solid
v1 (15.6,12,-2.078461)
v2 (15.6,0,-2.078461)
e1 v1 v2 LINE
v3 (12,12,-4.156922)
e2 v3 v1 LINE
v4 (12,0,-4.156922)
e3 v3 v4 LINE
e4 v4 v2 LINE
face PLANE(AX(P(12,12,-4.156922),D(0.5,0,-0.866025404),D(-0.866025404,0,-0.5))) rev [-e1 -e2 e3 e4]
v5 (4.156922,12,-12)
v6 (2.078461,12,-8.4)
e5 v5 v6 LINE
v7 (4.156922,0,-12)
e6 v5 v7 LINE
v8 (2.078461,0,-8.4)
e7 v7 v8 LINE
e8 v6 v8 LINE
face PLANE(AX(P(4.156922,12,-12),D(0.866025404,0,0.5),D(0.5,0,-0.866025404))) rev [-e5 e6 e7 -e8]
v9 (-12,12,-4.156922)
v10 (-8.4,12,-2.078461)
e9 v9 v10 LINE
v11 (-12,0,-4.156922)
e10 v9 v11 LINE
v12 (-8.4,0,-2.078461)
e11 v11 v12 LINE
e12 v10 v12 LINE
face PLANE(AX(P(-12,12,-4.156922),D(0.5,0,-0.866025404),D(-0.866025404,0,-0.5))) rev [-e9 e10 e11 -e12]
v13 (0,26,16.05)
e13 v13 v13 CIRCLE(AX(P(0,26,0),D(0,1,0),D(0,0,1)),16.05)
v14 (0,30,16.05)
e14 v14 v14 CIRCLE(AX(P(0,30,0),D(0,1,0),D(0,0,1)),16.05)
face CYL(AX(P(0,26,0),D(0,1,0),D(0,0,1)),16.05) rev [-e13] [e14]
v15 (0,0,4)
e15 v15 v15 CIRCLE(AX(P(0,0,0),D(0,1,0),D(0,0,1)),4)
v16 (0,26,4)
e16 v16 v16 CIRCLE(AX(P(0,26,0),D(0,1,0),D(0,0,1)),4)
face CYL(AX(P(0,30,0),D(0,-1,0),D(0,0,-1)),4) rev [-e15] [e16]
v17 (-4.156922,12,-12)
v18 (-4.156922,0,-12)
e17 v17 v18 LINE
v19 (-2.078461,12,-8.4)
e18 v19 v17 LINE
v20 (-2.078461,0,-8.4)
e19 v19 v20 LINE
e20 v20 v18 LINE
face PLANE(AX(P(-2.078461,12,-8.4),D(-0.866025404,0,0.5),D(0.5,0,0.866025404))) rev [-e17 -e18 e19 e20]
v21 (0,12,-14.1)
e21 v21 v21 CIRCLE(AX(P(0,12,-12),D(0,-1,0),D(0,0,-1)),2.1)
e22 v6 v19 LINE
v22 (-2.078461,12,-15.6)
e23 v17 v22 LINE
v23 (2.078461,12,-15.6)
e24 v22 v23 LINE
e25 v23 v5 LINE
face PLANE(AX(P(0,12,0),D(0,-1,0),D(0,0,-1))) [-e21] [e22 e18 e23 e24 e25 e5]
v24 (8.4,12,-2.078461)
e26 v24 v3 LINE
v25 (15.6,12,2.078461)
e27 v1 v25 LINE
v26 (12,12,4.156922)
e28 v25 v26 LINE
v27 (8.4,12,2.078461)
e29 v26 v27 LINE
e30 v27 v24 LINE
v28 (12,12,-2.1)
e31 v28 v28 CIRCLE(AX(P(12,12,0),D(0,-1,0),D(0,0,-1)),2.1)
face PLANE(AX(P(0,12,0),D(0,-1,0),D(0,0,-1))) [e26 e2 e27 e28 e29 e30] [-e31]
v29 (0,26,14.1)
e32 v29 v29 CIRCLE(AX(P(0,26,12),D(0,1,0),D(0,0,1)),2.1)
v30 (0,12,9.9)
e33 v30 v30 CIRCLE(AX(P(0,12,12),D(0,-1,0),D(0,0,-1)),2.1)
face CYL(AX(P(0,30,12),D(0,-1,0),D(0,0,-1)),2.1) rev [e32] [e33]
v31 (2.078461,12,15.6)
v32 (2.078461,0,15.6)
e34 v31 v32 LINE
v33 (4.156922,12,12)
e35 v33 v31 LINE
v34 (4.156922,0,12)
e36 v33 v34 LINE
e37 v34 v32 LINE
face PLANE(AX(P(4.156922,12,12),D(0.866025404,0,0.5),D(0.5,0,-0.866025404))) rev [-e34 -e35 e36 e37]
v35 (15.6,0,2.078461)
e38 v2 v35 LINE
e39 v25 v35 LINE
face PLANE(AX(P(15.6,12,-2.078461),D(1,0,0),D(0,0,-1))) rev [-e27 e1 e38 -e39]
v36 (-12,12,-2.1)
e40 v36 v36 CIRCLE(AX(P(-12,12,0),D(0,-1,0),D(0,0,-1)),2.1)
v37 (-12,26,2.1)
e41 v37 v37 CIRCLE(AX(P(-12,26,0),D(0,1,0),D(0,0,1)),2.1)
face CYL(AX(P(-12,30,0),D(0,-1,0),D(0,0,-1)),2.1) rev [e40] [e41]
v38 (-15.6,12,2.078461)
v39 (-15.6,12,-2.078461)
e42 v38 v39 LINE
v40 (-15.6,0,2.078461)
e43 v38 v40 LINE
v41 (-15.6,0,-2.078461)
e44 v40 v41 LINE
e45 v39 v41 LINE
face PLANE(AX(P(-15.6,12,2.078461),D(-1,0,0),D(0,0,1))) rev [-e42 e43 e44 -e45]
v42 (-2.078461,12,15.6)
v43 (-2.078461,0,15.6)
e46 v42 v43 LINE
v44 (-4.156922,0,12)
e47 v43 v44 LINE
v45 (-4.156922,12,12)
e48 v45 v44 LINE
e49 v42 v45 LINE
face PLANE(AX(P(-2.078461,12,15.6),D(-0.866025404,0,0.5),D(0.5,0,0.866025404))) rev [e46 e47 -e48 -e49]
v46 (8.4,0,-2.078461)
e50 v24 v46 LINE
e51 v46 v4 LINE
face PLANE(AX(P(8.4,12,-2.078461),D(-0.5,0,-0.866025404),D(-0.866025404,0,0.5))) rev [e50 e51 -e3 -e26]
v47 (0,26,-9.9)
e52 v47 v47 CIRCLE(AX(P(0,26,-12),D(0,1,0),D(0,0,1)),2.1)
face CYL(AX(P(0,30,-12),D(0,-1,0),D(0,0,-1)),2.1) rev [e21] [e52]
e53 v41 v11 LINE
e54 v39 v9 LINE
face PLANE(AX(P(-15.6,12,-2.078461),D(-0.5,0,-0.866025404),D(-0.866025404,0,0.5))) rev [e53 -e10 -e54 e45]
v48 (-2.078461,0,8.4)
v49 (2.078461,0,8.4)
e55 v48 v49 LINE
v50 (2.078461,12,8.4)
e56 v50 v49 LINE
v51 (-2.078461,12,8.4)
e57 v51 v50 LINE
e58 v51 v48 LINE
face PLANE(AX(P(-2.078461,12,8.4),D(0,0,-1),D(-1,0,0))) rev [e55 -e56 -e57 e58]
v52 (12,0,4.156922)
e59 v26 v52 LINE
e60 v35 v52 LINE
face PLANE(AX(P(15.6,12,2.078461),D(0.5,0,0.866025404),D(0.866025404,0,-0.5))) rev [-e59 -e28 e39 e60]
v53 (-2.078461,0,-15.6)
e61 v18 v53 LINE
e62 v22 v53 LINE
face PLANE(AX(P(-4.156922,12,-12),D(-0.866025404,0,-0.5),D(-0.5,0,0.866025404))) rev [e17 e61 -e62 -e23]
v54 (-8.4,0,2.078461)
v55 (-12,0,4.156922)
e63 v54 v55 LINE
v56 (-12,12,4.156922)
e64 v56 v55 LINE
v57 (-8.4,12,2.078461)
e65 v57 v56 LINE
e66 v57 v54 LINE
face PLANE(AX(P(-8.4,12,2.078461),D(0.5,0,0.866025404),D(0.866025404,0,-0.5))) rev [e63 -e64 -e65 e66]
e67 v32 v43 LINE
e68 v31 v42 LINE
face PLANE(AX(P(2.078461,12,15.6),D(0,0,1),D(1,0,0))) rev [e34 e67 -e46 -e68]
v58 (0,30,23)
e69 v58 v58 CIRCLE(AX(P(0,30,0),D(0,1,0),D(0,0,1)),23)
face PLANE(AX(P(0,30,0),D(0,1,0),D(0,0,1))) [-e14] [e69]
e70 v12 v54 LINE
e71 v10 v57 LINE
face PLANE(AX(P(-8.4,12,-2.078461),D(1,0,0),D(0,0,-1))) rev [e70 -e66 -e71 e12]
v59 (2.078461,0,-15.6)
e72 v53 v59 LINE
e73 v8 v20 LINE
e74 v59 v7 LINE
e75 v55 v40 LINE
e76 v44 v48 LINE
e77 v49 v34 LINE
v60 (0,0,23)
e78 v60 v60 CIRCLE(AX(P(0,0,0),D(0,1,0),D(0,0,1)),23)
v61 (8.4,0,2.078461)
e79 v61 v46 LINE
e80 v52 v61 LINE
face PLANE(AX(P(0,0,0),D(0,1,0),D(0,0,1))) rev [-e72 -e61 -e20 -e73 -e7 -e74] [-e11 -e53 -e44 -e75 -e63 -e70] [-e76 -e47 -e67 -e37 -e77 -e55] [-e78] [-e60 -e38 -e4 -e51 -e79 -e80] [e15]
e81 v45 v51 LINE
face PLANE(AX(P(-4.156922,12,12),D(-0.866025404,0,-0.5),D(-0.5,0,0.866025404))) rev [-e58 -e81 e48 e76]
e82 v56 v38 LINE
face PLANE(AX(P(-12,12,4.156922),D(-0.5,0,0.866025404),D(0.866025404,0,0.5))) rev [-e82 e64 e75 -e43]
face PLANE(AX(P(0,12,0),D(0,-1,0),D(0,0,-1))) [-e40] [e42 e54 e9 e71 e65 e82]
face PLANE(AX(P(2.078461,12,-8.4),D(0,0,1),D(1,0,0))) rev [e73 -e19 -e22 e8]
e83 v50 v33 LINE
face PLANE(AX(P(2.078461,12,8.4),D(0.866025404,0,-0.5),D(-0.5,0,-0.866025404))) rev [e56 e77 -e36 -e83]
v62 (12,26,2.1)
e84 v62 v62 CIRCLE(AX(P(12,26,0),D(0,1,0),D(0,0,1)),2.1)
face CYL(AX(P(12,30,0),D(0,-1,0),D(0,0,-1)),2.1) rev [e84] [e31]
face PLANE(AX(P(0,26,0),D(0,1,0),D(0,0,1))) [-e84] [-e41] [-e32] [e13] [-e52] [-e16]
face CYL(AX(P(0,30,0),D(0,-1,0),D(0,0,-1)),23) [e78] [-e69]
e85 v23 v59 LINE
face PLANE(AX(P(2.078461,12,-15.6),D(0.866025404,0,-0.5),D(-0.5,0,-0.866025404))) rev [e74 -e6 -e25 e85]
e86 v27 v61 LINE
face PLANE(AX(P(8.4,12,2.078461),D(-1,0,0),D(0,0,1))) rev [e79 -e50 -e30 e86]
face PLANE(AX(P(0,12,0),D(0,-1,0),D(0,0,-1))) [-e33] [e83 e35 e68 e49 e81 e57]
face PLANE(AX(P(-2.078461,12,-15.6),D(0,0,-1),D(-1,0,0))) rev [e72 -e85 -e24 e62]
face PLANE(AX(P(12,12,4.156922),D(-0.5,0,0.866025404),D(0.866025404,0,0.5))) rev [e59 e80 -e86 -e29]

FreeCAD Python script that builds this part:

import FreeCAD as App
import Part
import Sketcher
from FreeCAD import Vector
Q = App.Units.Quantity

doc = App.newDocument("Part")
body = doc.addObject("PartDesign::Body", "Body")

# Sketch on XZ plane
sketch1 = body.newObject("Sketcher::SketchObject", "Sketch")
sketch1.AttachmentSupport = (doc.getObject("XZ_Plane"), [""])
sketch1.MapMode = "FlatFace"
sketch1.addGeometry([
    Part.Circle(Vector(0, 0, 0), Vector(0, 0, 1), 23),  # 0
    Part.Circle(Vector(0, -12, 0), Vector(0, 0, 1), 2.1),  # 1
    Part.Circle(Vector(-12, 0, 0), Vector(0, 0, 1), 2.1),  # 2
    Part.Circle(Vector(12, 0, 0), Vector(0, 0, 1), 2.1),  # 3
    Part.Circle(Vector(0, 0, 0), Vector(0, 0, 1), 4),  # 4
    Part.Circle(Vector(0, 12, 0), Vector(0, 0, 1), 2.1),  # 5
], False)
sketch1.addConstraint([
    Sketcher.Constraint("Coincident", 0, 3, -1, 1),
    Sketcher.Constraint("Coincident", 4, 3, -1, 1),
    Sketcher.Constraint("Equal", 1, 2),
    Sketcher.Constraint("Equal", 2, 3),
    Sketcher.Constraint("Equal", 3, 5),
    Sketcher.Constraint("Symmetric", 2, 3, 3, 3, -1, 1),
    Sketcher.Constraint("Symmetric", 1, 3, 5, 3, -1, 1),
    Sketcher.Constraint("PointOnObject", 1, 3, -2),
    Sketcher.Constraint("PointOnObject", 2, 3, -1),
    Sketcher.Constraint("Diameter", 0, Q("46 mm")),
    Sketcher.Constraint("Diameter", 4, Q("8 mm")),
    Sketcher.Constraint("Diameter", 1, Q("4.2 mm")),
    Sketcher.Constraint("DistanceY", 1, 3, -1, 1, Q("12 mm")),
    Sketcher.Constraint("DistanceX", 2, 3, -1, 1, Q("12 mm")),
])
pad1 = body.newObject("PartDesign::Pad", "Pad")
pad1.Profile = sketch1
pad1.Length = 30
pad1.Reversed = True

# Sketch on XZ plane
sketch2 = body.newObject("Sketcher::SketchObject", "Sketch001")
sketch2.AttachmentSupport = (doc.getObject("XZ_Plane"), [""])
sketch2.MapMode = "FlatFace"
sketch2.AttachmentOffset = App.Placement(Vector(0, 0, -30), App.Rotation())
sketch2.addGeometry(Part.Circle(Vector(0, 0, 0), Vector(0, 0, 1), 16), False)
sketch2.addConstraint([
    Sketcher.Constraint("Coincident", 0, 3, -1, 1),
    Sketcher.Constraint("Diameter", 0, Q("32.1 mm")),
])
pocket1 = body.newObject("PartDesign::Pocket", "Pocket")
pocket1.Profile = sketch2
pocket1.Length = 4
pocket1.Reversed = True

# Sketch on XZ plane
sketch3 = body.newObject("Sketcher::SketchObject", "Sketch002")
sketch3.AttachmentSupport = (doc.getObject("XZ_Plane"), [""])
sketch3.MapMode = "FlatFace"
sketch3.addGeometry([
    Part.LineSegment(Vector(12, -4.2, 0), Vector(15.6, -2.1, 0)),  # 0
    Part.LineSegment(Vector(15.6, -2.1, 0), Vector(15.6, 2.1, 0)),  # 1
    Part.LineSegment(Vector(15.6, 2.1, 0), Vector(12, 4.2, 0)),  # 2
    Part.LineSegment(Vector(12, 4.2, 0), Vector(8.4, 2.1, 0)),  # 3
    Part.LineSegment(Vector(8.4, 2.1, 0), Vector(8.4, -2.1, 0)),  # 4
    Part.LineSegment(Vector(8.4, -2.1, 0), Vector(12, -4.2, 0)),  # 5
    Part.LineSegment(Vector(4.2, 12, 0), Vector(2.1, 15.6, 0)),  # 6
    Part.LineSegment(Vector(2.1, 15.6, 0), Vector(-2.1, 15.6, 0)),  # 7
    Part.LineSegment(Vector(-2.1, 15.6, 0), Vector(-4.2, 12, 0)),  # 8
    Part.LineSegment(Vector(-4.2, 12, 0), Vector(-2.1, 8.4, 0)),  # 9
    Part.LineSegment(Vector(-2.1, 8.4, 0), Vector(2.1, 8.4, 0)),  # 10
    Part.LineSegment(Vector(2.1, 8.4, 0), Vector(4.2, 12, 0)),  # 11
    Part.LineSegment(Vector(-4.2, -12, 0), Vector(-2.1, -15.6, 0)),  # 12
    Part.LineSegment(Vector(-2.1, -15.6, 0), Vector(2.1, -15.6, 0)),  # 13
    Part.LineSegment(Vector(2.1, -15.6, 0), Vector(4.2, -12, 0)),  # 14
    Part.LineSegment(Vector(4.2, -12, 0), Vector(2.1, -8.4, 0)),  # 15
    Part.LineSegment(Vector(2.1, -8.4, 0), Vector(-2.1, -8.4, 0)),  # 16
    Part.LineSegment(Vector(-2.1, -8.4, 0), Vector(-4.2, -12, 0)),  # 17
    Part.LineSegment(Vector(-12, 4.2, 0), Vector(-15.6, 2.1, 0)),  # 18
    Part.LineSegment(Vector(-15.6, 2.1, 0), Vector(-15.6, -2.1, 0)),  # 19
    Part.LineSegment(Vector(-15.6, -2.1, 0), Vector(-12, -4.2, 0)),  # 20
    Part.LineSegment(Vector(-12, -4.2, 0), Vector(-8.4, -2.1, 0)),  # 21
    Part.LineSegment(Vector(-8.4, -2.1, 0), Vector(-8.4, 2.1, 0)),  # 22
    Part.LineSegment(Vector(-8.4, 2.1, 0), Vector(-12, 4.2, 0)),  # 23
], False)
sketch3.addConstraint([
    Sketcher.Constraint("Coincident", 0, 2, 1, 1),
    Sketcher.Constraint("Coincident", 1, 2, 2, 1),
    Sketcher.Constraint("Coincident", 2, 2, 3, 1),
    Sketcher.Constraint("Coincident", 3, 2, 4, 1),
    Sketcher.Constraint("Coincident", 4, 2, 5, 1),
    Sketcher.Constraint("Coincident", 5, 2, 0, 1),
    Sketcher.Constraint("Coincident", 6, 2, 7, 1),
    Sketcher.Constraint("Coincident", 7, 2, 8, 1),
    Sketcher.Constraint("Coincident", 8, 2, 9, 1),
    Sketcher.Constraint("Coincident", 9, 2, 10, 1),
    Sketcher.Constraint("Coincident", 10, 2, 11, 1),
    Sketcher.Constraint("Coincident", 11, 2, 6, 1),
    Sketcher.Constraint("Coincident", 12, 2, 13, 1),
    Sketcher.Constraint("Coincident", 13, 2, 14, 1),
    Sketcher.Constraint("Coincident", 14, 2, 15, 1),
    Sketcher.Constraint("Coincident", 15, 2, 16, 1),
    Sketcher.Constraint("Coincident", 16, 2, 17, 1),
    Sketcher.Constraint("Coincident", 17, 2, 12, 1),
    Sketcher.Constraint("Coincident", 18, 2, 19, 1),
    Sketcher.Constraint("Coincident", 19, 2, 20, 1),
    Sketcher.Constraint("Coincident", 20, 2, 21, 1),
    Sketcher.Constraint("Coincident", 21, 2, 22, 1),
    Sketcher.Constraint("Coincident", 22, 2, 23, 1),
    Sketcher.Constraint("Coincident", 23, 2, 18, 1),
    Sketcher.Constraint("Vertical", 1),
    Sketcher.Constraint("Vertical", 4),
    Sketcher.Constraint("Horizontal", 7),
    Sketcher.Constraint("Horizontal", 10),
    Sketcher.Constraint("Horizontal", 13),
    Sketcher.Constraint("Horizontal", 16),
    Sketcher.Constraint("Vertical", 19),
    Sketcher.Constraint("Vertical", 22),
    Sketcher.Constraint("Symmetric", 6, 2, 12, 2, -1, 1),
    Sketcher.Constraint("Symmetric", 8, 2, 14, 2, -1, 1),
    Sketcher.Constraint("Symmetric", 9, 2, 15, 2, -1, 1),
    Sketcher.Constraint("Symmetric", 11, 2, 17, 2, -1, 1),
    Sketcher.Constraint("Symmetric", 0, 2, 18, 2, -1, 1),
    Sketcher.Constraint("Symmetric", 2, 2, 20, 2, -1, 1),
    Sketcher.Constraint("Symmetric", 3, 2, 21, 2, -1, 1),
    Sketcher.Constraint("Symmetric", 5, 2, 23, 2, -1, 1),
    Sketcher.Constraint("Symmetric", 8, 2, 11, 2, -2),
    Sketcher.Constraint("Symmetric", 5, 2, 20, 2, -2),
    Sketcher.Constraint("Parallel", 0, 3),
    Sketcher.Constraint("Parallel", 2, 5),
    Sketcher.Constraint("Perpendicular", 3, 6),
    Sketcher.Constraint("Perpendicular", 5, 8),
    Sketcher.Constraint("Parallel", 6, 9),
    Sketcher.Constraint("Parallel", 8, 11),
    Sketcher.Constraint("Parallel", 11, 14),
    Sketcher.Constraint("Parallel", 14, 17),
    Sketcher.Constraint("Perpendicular", 17, 20),
    Sketcher.Constraint("Parallel", 20, 23),
    Sketcher.Constraint("Horizontal", 1, 2, 3, 2),
    Sketcher.Constraint("Horizontal", 0, 2, 4, 2),
    Sketcher.Constraint("Vertical", 7, 2, 9, 2),
    Sketcher.Constraint("Equal", 16, 1),
    Sketcher.Constraint("Equal", 5, 6),
    Sketcher.Constraint("Angle", 0, Q("30 deg")),
    Sketcher.Constraint("DistanceX", -1, 1, 2, 2, Q("12 mm")),
    Sketcher.Constraint("DistanceY", -1, 1, 8, 2, Q("12 mm")),
    Sketcher.Constraint("DistanceX", -1, 1, 0, 2, Q("15.6 mm")),
    Sketcher.Constraint("DistanceX", 7, 2, 7, 1, Q("4.156922 mm")),
])
pocket2 = body.newObject("PartDesign::Pocket", "Pocket001")
pocket2.Profile = sketch3
pocket2.Length = 12

doc.recompute()
